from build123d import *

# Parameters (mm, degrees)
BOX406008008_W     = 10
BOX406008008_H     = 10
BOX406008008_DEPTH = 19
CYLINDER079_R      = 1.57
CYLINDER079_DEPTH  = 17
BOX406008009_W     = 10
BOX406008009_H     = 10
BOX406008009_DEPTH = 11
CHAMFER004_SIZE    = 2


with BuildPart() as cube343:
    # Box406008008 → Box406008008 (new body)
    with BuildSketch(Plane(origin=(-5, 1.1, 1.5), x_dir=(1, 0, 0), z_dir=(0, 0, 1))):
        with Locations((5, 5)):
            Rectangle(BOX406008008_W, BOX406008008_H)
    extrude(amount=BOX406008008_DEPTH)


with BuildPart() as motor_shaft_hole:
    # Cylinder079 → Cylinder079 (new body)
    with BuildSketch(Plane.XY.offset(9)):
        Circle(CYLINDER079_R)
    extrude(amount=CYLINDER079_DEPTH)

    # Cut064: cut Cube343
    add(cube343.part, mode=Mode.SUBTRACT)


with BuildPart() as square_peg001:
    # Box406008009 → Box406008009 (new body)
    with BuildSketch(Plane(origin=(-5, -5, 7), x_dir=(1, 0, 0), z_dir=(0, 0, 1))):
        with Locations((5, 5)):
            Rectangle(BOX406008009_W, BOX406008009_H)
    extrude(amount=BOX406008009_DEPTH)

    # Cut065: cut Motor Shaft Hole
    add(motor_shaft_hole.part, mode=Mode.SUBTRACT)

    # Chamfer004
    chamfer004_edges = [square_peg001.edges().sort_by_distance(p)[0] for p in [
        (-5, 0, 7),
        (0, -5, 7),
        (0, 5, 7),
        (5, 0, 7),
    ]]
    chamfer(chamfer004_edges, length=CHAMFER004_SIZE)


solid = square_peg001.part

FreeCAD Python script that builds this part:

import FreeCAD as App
import Part
import Sketcher

V = App.Vector


def edges_at(feature, points):
    """Names of the edges that pass closest to the given points."""
    edges = feature.Shape.Edges
    near = lambda p: min(range(len(edges)), key=lambda i: edges[i].distToShape(Part.Vertex(*p))[0])
    return sorted({f"Edge{near(p) + 1}" for p in points})

doc = App.newDocument("Part")
body = doc.addObject("PartDesign::Body", "Body")

# Sketch on XY plane
sketch1 = body.newObject("Sketcher::SketchObject", "Sketch")
sketch1.AttachmentSupport = (doc.getObject("XY_Plane"), [""])
sketch1.MapMode = "FlatFace"
sketch1.AttachmentOffset = App.Placement(V(0, 0, 1.5), App.Rotation())
sketch1.addGeometry(Part.LineSegment(V(-5, 11.1, 0), V(-5, 1.1, 0)), False)
sketch1.addGeometry(Part.LineSegment(V(-5, 1.1, 0), V(5, 1.1, 0)), False)
sketch1.addGeometry(Part.LineSegment(V(5, 1.1, 0), V(5, 11.1, 0)), False)
sketch1.addGeometry(Part.LineSegment(V(5, 11.1, 0), V(-5, 11.1, 0)), False)
sketch1.addConstraint(Sketcher.Constraint("Coincident", 0, 2, 1, 1))
sketch1.addConstraint(Sketcher.Constraint("Coincident", 1, 2, 2, 1))
sketch1.addConstraint(Sketcher.Constraint("Coincident", 2, 2, 3, 1))
sketch1.addConstraint(Sketcher.Constraint("Coincident", 3, 2, 0, 1))
sketch1.addConstraint(Sketcher.Constraint("Vertical", 0))
sketch1.addConstraint(Sketcher.Constraint("Horizontal", 1))
sketch1.addConstraint(Sketcher.Constraint("Vertical", 2))
sketch1.addConstraint(Sketcher.Constraint("Horizontal", 3))
sketch1.addConstraint(Sketcher.Constraint("Equal", 3, 0))
sketch1.addConstraint(Sketcher.Constraint("DistanceX", 1, 1, 1, 2, 10.0))
sketch1.addConstraint(Sketcher.Constraint("DistanceX", 0, 2, -1, 1, 5.0))
sketch1.addConstraint(Sketcher.Constraint("DistanceY", -1, 1, 0, 2, 1.1))
pad1 = body.newObject("PartDesign::Pad", "Pad")
pad1.Profile = sketch1
pad1.Length = 19
body2 = doc.addObject("PartDesign::Body", "Body001")

# Sketch on XY plane
sketch2 = body2.newObject("Sketcher::SketchObject", "Sketch001")
sketch2.AttachmentSupport = (doc.getObject("XY_Plane001"), [""])
sketch2.MapMode = "FlatFace"
sketch2.AttachmentOffset = App.Placement(V(0, 0, 9), App.Rotation())
sketch2.addGeometry(Part.Circle(V(0, 0, 0), V(0, 0, 1), 1.57), False)
sketch2.addConstraint(Sketcher.Constraint("Coincident", 0, 3, -1, 1))
sketch2.addConstraint(Sketcher.Constraint("Diameter", 0, 3.14))
pad2 = body2.newObject("PartDesign::Pad", "Pad001")
pad2.Profile = sketch2
pad2.Length = 17
doc.recompute()

boolean = body2.newObject("PartDesign::Boolean", "Boolean")
boolean.Type = "Cut"
boolean.addObjects([body])
body3 = doc.addObject("PartDesign::Body", "Body002")

# Sketch on XY plane
sketch3 = body3.newObject("Sketcher::SketchObject", "Sketch002")
sketch3.AttachmentSupport = (doc.getObject("XY_Plane002"), [""])
sketch3.MapMode = "FlatFace"
sketch3.AttachmentOffset = App.Placement(V(0, 0, 7), App.Rotation())
sketch3.addGeometry(Part.LineSegment(V(-5, 5, 0), V(-5, -5, 0)), False)
sketch3.addGeometry(Part.LineSegment(V(-5, -5, 0), V(5, -5, 0)), False)
sketch3.addGeometry(Part.LineSegment(V(5, -5, 0), V(5, 5, 0)), False)
sketch3.addGeometry(Part.LineSegment(V(5, 5, 0), V(-5, 5, 0)), False)
sketch3.addConstraint(Sketcher.Constraint("Coincident", 0, 2, 1, 1))
sketch3.addConstraint(Sketcher.Constraint("Coincident", 1, 2, 2, 1))
sketch3.addConstraint(Sketcher.Constraint("Coincident", 2, 2, 3, 1))
sketch3.addConstraint(Sketcher.Constraint("Coincident", 3, 2, 0, 1))
sketch3.addConstraint(Sketcher.Constraint("Vertical", 0))
sketch3.addConstraint(Sketcher.Constraint("Horizontal", 1))
sketch3.addConstraint(Sketcher.Constraint("Vertical", 2))
sketch3.addConstraint(Sketcher.Constraint("Horizontal", 3))
sketch3.addConstraint(Sketcher.Constraint("Symmetric", 0, 2, 2, 2, -1, 1))
sketch3.addConstraint(Sketcher.Constraint("Equal", 3, 0))
sketch3.addConstraint(Sketcher.Constraint("DistanceX", 1, 1, 1, 2, 10.0))
pad3 = body3.newObject("PartDesign::Pad", "Pad002")
pad3.Profile = sketch3
pad3.Length = 11
doc.recompute()

boolean2 = body3.newObject("PartDesign::Boolean", "Boolean001")
boolean2.Type = "Cut"
boolean2.addObjects([body2])
doc.recompute()

chamfer = body3.newObject("PartDesign::Chamfer", "Chamfer")
chamfer.Base = (boolean2, edges_at(boolean2, [
    (-5, 0, 7),
    (0, -5, 7),
    (0, 5, 7),
    (5, 0, 7),
]))
chamfer.Size = 2

doc.recompute()
